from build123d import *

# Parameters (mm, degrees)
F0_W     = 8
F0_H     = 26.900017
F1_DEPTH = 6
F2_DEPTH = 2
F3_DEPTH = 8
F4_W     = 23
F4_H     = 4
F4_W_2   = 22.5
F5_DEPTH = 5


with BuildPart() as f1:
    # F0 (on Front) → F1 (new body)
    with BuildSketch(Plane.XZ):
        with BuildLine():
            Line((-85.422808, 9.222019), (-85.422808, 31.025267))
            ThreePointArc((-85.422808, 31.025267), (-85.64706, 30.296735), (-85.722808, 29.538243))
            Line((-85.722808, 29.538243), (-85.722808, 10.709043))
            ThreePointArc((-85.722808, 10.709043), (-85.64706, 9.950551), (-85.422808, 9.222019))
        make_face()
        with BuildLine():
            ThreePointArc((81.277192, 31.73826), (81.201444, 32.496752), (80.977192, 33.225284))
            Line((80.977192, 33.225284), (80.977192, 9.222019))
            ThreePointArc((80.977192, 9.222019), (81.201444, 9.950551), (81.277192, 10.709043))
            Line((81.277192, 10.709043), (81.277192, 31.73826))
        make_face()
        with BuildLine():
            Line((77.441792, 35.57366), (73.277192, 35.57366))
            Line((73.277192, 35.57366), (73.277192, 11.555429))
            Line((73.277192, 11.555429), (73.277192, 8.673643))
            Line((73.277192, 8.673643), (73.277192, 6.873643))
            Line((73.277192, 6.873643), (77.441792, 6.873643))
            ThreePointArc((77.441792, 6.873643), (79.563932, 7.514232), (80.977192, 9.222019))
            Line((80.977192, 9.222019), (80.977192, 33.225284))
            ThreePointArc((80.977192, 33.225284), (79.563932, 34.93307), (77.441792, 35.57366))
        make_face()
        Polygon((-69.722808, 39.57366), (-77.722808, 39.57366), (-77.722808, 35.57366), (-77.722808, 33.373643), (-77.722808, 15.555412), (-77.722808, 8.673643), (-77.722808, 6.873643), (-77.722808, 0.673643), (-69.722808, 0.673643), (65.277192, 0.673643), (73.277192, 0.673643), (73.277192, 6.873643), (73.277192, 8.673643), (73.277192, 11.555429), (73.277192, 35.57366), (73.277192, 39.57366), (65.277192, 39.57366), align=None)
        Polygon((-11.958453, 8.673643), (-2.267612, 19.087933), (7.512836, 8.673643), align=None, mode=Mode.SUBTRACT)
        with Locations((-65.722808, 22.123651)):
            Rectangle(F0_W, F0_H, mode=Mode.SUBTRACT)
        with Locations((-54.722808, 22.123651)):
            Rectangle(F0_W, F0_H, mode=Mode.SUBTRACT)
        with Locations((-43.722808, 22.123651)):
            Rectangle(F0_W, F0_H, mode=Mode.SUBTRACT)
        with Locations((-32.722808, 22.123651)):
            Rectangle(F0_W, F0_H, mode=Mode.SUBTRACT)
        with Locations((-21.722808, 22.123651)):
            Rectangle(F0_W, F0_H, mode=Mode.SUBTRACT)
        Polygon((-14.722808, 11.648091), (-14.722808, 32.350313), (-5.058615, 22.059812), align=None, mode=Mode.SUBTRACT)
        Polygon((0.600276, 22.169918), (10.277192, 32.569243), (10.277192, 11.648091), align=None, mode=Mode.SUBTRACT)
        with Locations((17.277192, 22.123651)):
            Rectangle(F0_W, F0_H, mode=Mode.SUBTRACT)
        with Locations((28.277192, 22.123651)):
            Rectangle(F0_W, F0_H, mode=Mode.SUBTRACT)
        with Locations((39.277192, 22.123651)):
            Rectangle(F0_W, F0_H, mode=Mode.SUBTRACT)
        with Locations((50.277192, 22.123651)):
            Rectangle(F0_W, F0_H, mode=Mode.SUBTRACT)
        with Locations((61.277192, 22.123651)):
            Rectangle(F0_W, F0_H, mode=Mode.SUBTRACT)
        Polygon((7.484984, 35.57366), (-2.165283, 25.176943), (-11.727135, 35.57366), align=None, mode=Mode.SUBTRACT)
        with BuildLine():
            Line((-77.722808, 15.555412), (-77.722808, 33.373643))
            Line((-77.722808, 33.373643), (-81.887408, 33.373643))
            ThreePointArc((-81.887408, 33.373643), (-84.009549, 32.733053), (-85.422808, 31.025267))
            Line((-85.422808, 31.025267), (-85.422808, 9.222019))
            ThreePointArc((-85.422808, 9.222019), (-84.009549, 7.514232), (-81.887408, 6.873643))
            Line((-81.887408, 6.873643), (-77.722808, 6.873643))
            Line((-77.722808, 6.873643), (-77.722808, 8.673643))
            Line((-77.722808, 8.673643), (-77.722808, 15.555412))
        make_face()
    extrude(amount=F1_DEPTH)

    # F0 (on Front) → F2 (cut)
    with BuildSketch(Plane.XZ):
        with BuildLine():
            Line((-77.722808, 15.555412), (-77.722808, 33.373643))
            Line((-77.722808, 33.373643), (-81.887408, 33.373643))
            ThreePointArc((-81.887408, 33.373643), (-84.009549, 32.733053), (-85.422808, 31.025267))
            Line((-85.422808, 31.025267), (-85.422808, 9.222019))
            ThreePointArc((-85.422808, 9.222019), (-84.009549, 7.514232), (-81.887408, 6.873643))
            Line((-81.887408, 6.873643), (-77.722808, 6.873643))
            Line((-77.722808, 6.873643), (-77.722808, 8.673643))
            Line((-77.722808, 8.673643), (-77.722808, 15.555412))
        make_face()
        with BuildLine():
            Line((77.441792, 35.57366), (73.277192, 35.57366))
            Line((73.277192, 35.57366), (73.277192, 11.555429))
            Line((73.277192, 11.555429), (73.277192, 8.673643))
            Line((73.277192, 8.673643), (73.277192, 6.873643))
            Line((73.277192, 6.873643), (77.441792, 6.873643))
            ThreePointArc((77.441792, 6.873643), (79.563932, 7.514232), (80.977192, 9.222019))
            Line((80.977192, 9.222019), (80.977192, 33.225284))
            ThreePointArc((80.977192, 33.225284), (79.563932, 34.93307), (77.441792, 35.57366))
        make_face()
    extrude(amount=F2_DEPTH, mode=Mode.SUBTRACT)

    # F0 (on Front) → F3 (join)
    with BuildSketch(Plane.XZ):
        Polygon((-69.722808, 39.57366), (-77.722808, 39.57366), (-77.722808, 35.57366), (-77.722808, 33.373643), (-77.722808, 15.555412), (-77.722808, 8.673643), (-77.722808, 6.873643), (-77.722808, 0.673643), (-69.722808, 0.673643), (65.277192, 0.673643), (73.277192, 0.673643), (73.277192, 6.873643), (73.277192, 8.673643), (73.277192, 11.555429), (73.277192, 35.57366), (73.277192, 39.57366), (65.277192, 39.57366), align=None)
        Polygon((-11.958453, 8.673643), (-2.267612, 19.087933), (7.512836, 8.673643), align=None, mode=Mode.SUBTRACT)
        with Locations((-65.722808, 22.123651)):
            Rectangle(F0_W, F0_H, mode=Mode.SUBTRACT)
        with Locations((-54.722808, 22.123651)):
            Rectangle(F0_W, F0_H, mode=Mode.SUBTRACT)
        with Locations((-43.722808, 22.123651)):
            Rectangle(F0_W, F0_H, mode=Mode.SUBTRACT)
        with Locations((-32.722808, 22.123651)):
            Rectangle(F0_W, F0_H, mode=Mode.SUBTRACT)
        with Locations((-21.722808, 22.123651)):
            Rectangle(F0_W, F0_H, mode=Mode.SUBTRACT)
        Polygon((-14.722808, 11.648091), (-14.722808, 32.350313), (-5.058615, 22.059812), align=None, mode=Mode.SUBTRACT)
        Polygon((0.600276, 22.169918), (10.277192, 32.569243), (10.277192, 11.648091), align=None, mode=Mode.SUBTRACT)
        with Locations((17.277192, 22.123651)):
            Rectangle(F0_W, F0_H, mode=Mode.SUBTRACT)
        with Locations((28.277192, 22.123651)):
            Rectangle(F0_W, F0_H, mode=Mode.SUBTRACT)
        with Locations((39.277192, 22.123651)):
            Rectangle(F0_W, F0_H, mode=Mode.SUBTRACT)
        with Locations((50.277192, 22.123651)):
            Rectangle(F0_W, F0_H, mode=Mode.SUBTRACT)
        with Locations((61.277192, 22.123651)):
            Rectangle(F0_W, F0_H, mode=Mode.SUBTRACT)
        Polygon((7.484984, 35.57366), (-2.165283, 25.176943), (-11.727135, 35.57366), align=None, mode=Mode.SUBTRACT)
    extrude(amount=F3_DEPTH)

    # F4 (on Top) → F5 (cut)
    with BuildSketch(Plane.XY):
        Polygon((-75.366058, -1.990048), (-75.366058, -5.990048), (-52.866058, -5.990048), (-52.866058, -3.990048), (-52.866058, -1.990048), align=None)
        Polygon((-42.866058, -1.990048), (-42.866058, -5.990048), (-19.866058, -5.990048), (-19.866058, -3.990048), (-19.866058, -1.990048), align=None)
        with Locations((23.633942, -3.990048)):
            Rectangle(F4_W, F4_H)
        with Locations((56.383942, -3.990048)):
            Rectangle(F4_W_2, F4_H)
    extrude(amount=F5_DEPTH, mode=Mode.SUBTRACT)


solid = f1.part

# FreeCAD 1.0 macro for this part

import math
import FreeCAD as App
import Part
import Sketcher

V = App.Vector
Q = App.Units.Quantity

doc = App.newDocument("Part")
body = doc.addObject("PartDesign::Body", "Body")

# Sketch on XZ plane
sketch1 = body.newObject("Sketcher::SketchObject", "Sketch")
sketch1.AttachmentSupport = (doc.getObject("XZ_Plane"), [""])
sketch1.MapMode = "FlatFace"
sketch1.addGeometry([
    Part.ArcOfCircle(Part.Circle(V(-81.9, 29.5, 0), V(0, 0, 1), 3.8), math.radians(157), math.radians(180)),  # 0
    Part.LineSegment(V(-85.7, 29.5, 0), V(-85.7, 10.7, 0)),  # 1
    Part.ArcOfCircle(Part.Circle(V(-81.9, 10.7, 0), V(0, 0, 1), 3.8), math.radians(180), math.radians(203)),  # 2
    Part.ArcOfCircle(Part.Circle(V(-81.9, 10.7, 0), V(0, 0, 1), 3.8), math.radians(-157), math.radians(-90)),  # 3
    Part.LineSegment(V(-81.9, 6.9, 0), V(-77.7, 6.9, 0)),  # 4
    Part.LineSegment(V(-77.7, 6.9, 0), V(-77.7, 0.7, 0)),  # 5
    Part.LineSegment(V(-77.7, 0.7, 0), V(73.3, 0.7, 0)),  # 6
    Part.LineSegment(V(73.3, 0.7, 0), V(73.3, 6.9, 0)),  # 7
    Part.LineSegment(V(73.3, 6.9, 0), V(77.4, 6.9, 0)),  # 8
    Part.ArcOfCircle(Part.Circle(V(77.4, 10.7, 0), V(0, 0, 1), 3.8), math.radians(-90), math.radians(-23)),  # 9
    Part.ArcOfCircle(Part.Circle(V(77.4, 10.7, 0), V(0, 0, 1), 3.8), math.radians(-23), math.radians(0)),  # 10
    Part.LineSegment(V(81.3, 10.7, 0), V(81.3, 31.7, 0)),  # 11
    Part.ArcOfCircle(Part.Circle(V(77.4, 31.7, 0), V(0, 0, 1), 3.8), math.radians(0), math.radians(23)),  # 12
    Part.ArcOfCircle(Part.Circle(V(77.4, 31.7, 0), V(0, 0, 1), 3.8), math.radians(23), math.radians(90)),  # 13
    Part.LineSegment(V(77.4, 35.6, 0), V(73.3, 35.6, 0)),  # 14
    Part.LineSegment(V(73.3, 35.6, 0), V(73.3, 39.6, 0)),  # 15
    Part.LineSegment(V(73.3, 39.6, 0), V(-77.7, 39.6, 0)),  # 16
    Part.LineSegment(V(-77.7, 39.6, 0), V(-77.7, 33.4, 0)),  # 17
    Part.LineSegment(V(-77.7, 33.4, 0), V(-81.9, 33.4, 0)),  # 18
    Part.ArcOfCircle(Part.Circle(V(-81.9, 29.5, 0), V(0, 0, 1), 3.8), math.radians(90), math.radians(157)),  # 19
    Part.LineSegment(V(7.5, 35.6, 0), V(-2.2, 25.2, 0)),  # 20
    Part.LineSegment(V(-2.2, 25.2, 0), V(-11.7, 35.6, 0)),  # 21
    Part.LineSegment(V(-11.7, 35.6, 0), V(7.5, 35.6, 0)),  # 22
    Part.LineSegment(V(7.5, 8.7, 0), V(-12, 8.7, 0)),  # 23
    Part.LineSegment(V(-12, 8.7, 0), V(-2.3, 19.1, 0)),  # 24
    Part.LineSegment(V(-2.3, 19.1, 0), V(7.5, 8.7, 0)),  # 25
    Part.LineSegment(V(-61.7, 8.7, 0), V(-69.7, 8.7, 0)),  # 26
    Part.LineSegment(V(-69.7, 8.7, 0), V(-69.7, 35.6, 0)),  # 27
    Part.LineSegment(V(-69.7, 35.6, 0), V(-61.7, 35.6, 0)),  # 28
    Part.LineSegment(V(-61.7, 35.6, 0), V(-61.7, 8.7, 0)),  # 29
    Part.LineSegment(V(-50.7, 8.7, 0), V(-58.7, 8.7, 0)),  # 30
    Part.LineSegment(V(-58.7, 8.7, 0), V(-58.7, 35.6, 0)),  # 31
    Part.LineSegment(V(-58.7, 35.6, 0), V(-50.7, 35.6, 0)),  # 32
    Part.LineSegment(V(-50.7, 35.6, 0), V(-50.7, 8.7, 0)),  # 33
    Part.LineSegment(V(-39.7, 8.7, 0), V(-47.7, 8.7, 0)),  # 34
    Part.LineSegment(V(-47.7, 8.7, 0), V(-47.7, 35.6, 0)),  # 35
    Part.LineSegment(V(-47.7, 35.6, 0), V(-39.7, 35.6, 0)),  # 36
    Part.LineSegment(V(-39.7, 35.6, 0), V(-39.7, 8.7, 0)),  # 37
    Part.LineSegment(V(-28.7, 8.7, 0), V(-36.7, 8.7, 0)),  # 38
    Part.LineSegment(V(-36.7, 8.7, 0), V(-36.7, 35.6, 0)),  # 39
    Part.LineSegment(V(-36.7, 35.6, 0), V(-28.7, 35.6, 0)),  # 40
    Part.LineSegment(V(-28.7, 35.6, 0), V(-28.7, 8.7, 0)),  # 41
    Part.LineSegment(V(-17.7, 8.7, 0), V(-25.7, 8.7, 0)),  # 42
    Part.LineSegment(V(-25.7, 8.7, 0), V(-25.7, 35.6, 0)),  # 43
    Part.LineSegment(V(-25.7, 35.6, 0), V(-17.7, 35.6, 0)),  # 44
    Part.LineSegment(V(-17.7, 35.6, 0), V(-17.7, 8.7, 0)),  # 45
    Part.LineSegment(V(-5.1, 22.1, 0), V(-14.7, 11.6, 0)),  # 46
    Part.LineSegment(V(-14.7, 11.6, 0), V(-14.7, 32.4, 0)),  # 47
    Part.LineSegment(V(-14.7, 32.4, 0), V(-5.1, 22.1, 0)),  # 48
    Part.LineSegment(V(10.3, 11.6, 0), V(0.6, 22.2, 0)),  # 49
    Part.LineSegment(V(0.6, 22.2, 0), V(10.3, 32.6, 0)),  # 50
    Part.LineSegment(V(10.3, 32.6, 0), V(10.3, 11.6, 0)),  # 51
    Part.LineSegment(V(21.3, 8.7, 0), V(13.3, 8.7, 0)),  # 52
    Part.LineSegment(V(13.3, 8.7, 0), V(13.3, 35.6, 0)),  # 53
    Part.LineSegment(V(13.3, 35.6, 0), V(21.3, 35.6, 0)),  # 54
    Part.LineSegment(V(21.3, 35.6, 0), V(21.3, 8.7, 0)),  # 55
    Part.LineSegment(V(32.3, 8.7, 0), V(24.3, 8.7, 0)),  # 56
    Part.LineSegment(V(24.3, 8.7, 0), V(24.3, 35.6, 0)),  # 57
    Part.LineSegment(V(24.3, 35.6, 0), V(32.3, 35.6, 0)),  # 58
    Part.LineSegment(V(32.3, 35.6, 0), V(32.3, 8.7, 0)),  # 59
    Part.LineSegment(V(43.3, 8.7, 0), V(35.3, 8.7, 0)),  # 60
    Part.LineSegment(V(35.3, 8.7, 0), V(35.3, 35.6, 0)),  # 61
    Part.LineSegment(V(35.3, 35.6, 0), V(43.3, 35.6, 0)),  # 62
    Part.LineSegment(V(43.3, 35.6, 0), V(43.3, 8.7, 0)),  # 63
    Part.LineSegment(V(54.3, 8.7, 0), V(46.3, 8.7, 0)),  # 64
    Part.LineSegment(V(46.3, 8.7, 0), V(46.3, 35.6, 0)),  # 65
    Part.LineSegment(V(46.3, 35.6, 0), V(54.3, 35.6, 0)),  # 66
    Part.LineSegment(V(54.3, 35.6, 0), V(54.3, 8.7, 0)),  # 67
    Part.LineSegment(V(65.3, 8.7, 0), V(57.3, 8.7, 0)),  # 68
    Part.LineSegment(V(57.3, 8.7, 0), V(57.3, 35.6, 0)),  # 69
    Part.LineSegment(V(57.3, 35.6, 0), V(65.3, 35.6, 0)),  # 70
    Part.LineSegment(V(65.3, 35.6, 0), V(65.3, 8.7, 0)),  # 71
], False)
sketch1.addConstraint([
    Sketcher.Constraint("Tangent", 0, 2, 1, 1),
    Sketcher.Constraint("Tangent", 1, 2, 2, 1),
    Sketcher.Constraint("Tangent", 2, 2, 3, 1),
    Sketcher.Constraint("Tangent", 3, 2, 4, 1),
    Sketcher.Constraint("Coincident", 4, 2, 5, 1),
    Sketcher.Constraint("Coincident", 5, 2, 6, 1),
    Sketcher.Constraint("Coincident", 6, 2, 7, 1),
    Sketcher.Constraint("Coincident", 7, 2, 8, 1),
    Sketcher.Constraint("Tangent", 8, 2, 9, 1),
    Sketcher.Constraint("Tangent", 9, 2, 10, 1),
    Sketcher.Constraint("Tangent", 10, 2, 11, 1),
    Sketcher.Constraint("Tangent", 11, 2, 12, 1),
    Sketcher.Constraint("Tangent", 12, 2, 13, 1),
    Sketcher.Constraint("Tangent", 13, 2, 14, 1),
    Sketcher.Constraint("Coincident", 14, 2, 15, 1),
    Sketcher.Constraint("Coincident", 15, 2, 16, 1),
    Sketcher.Constraint("Coincident", 16, 2, 17, 1),
    Sketcher.Constraint("Coincident", 17, 2, 18, 1),
    Sketcher.Constraint("Tangent", 18, 2, 19, 1),
    Sketcher.Constraint("Tangent", 19, 2, 0, 1),
    Sketcher.Constraint("Coincident", 20, 2, 21, 1),
    Sketcher.Constraint("Coincident", 21, 2, 22, 1),
    Sketcher.Constraint("Coincident", 22, 2, 20, 1),
    Sketcher.Constraint("Coincident", 23, 2, 24, 1),
    Sketcher.Constraint("Coincident", 24, 2, 25, 1),
    Sketcher.Constraint("Coincident", 25, 2, 23, 1),
    Sketcher.Constraint("Coincident", 26, 2, 27, 1),
    Sketcher.Constraint("Coincident", 27, 2, 28, 1),
    Sketcher.Constraint("Coincident", 28, 2, 29, 1),
    Sketcher.Constraint("Coincident", 29, 2, 26, 1),
    Sketcher.Constraint("Coincident", 30, 2, 31, 1),
    Sketcher.Constraint("Coincident", 31, 2, 32, 1),
    Sketcher.Constraint("Coincident", 32, 2, 33, 1),
    Sketcher.Constraint("Coincident", 33, 2, 30, 1),
    Sketcher.Constraint("Coincident", 34, 2, 35, 1),
    Sketcher.Constraint("Coincident", 35, 2, 36, 1),
    Sketcher.Constraint("Coincident", 36, 2, 37, 1),
    Sketcher.Constraint("Coincident", 37, 2, 34, 1),
    Sketcher.Constraint("Coincident", 38, 2, 39, 1),
    Sketcher.Constraint("Coincident", 39, 2, 40, 1),
    Sketcher.Constraint("Coincident", 40, 2, 41, 1),
    Sketcher.Constraint("Coincident", 41, 2, 38, 1),
    Sketcher.Constraint("Coincident", 42, 2, 43, 1),
    Sketcher.Constraint("Coincident", 43, 2, 44, 1),
    Sketcher.Constraint("Coincident", 44, 2, 45, 1),
    Sketcher.Constraint("Coincident", 45, 2, 42, 1),
    Sketcher.Constraint("Coincident", 46, 2, 47, 1),
    Sketcher.Constraint("Coincident", 47, 2, 48, 1),
    Sketcher.Constraint("Coincident", 48, 2, 46, 1),
    Sketcher.Constraint("Coincident", 49, 2, 50, 1),
    Sketcher.Constraint("Coincident", 50, 2, 51, 1),
    Sketcher.Constraint("Coincident", 51, 2, 49, 1),
    Sketcher.Constraint("Coincident", 52, 2, 53, 1),
    Sketcher.Constraint("Coincident", 53, 2, 54, 1),
    Sketcher.Constraint("Coincident", 54, 2, 55, 1),
    Sketcher.Constraint("Coincident", 55, 2, 52, 1),
    Sketcher.Constraint("Coincident", 56, 2, 57, 1),
    Sketcher.Constraint("Coincident", 57, 2, 58, 1),
    Sketcher.Constraint("Coincident", 58, 2, 59, 1),
    Sketcher.Constraint("Coincident", 59, 2, 56, 1),
    Sketcher.Constraint("Coincident", 60, 2, 61, 1),
    Sketcher.Constraint("Coincident", 61, 2, 62, 1),
    Sketcher.Constraint("Coincident", 62, 2, 63, 1),
    Sketcher.Constraint("Coincident", 63, 2, 60, 1),
    Sketcher.Constraint("Coincident", 64, 2, 65, 1),
    Sketcher.Constraint("Coincident", 65, 2, 66, 1),
    Sketcher.Constraint("Coincident", 66, 2, 67, 1),
    Sketcher.Constraint("Coincident", 67, 2, 64, 1),
    Sketcher.Constraint("Coincident", 68, 2, 69, 1),
    Sketcher.Constraint("Coincident", 69, 2, 70, 1),
    Sketcher.Constraint("Coincident", 70, 2, 71, 1),
    Sketcher.Constraint("Coincident", 71, 2, 68, 1),
    Sketcher.Constraint("Vertical", 1),
    Sketcher.Constraint("Horizontal", 4),
    Sketcher.Constraint("Vertical", 5),
    Sketcher.Constraint("Horizontal", 6),
    Sketcher.Constraint("Vertical", 7),
    Sketcher.Constraint("Horizontal", 8),
    Sketcher.Constraint("Vertical", 11),
    Sketcher.Constraint("Horizontal", 14),
    Sketcher.Constraint("Vertical", 15),
    Sketcher.Constraint("Horizontal", 16),
    Sketcher.Constraint("Vertical", 17),
    Sketcher.Constraint("Horizontal", 18),
    Sketcher.Constraint("Horizontal", 22),
    Sketcher.Constraint("Horizontal", 23),
    Sketcher.Constraint("Horizontal", 26),
    Sketcher.Constraint("Vertical", 27),
    Sketcher.Constraint("Horizontal", 28),
    Sketcher.Constraint("Vertical", 29),
    Sketcher.Constraint("Horizontal", 30),
    Sketcher.Constraint("Vertical", 31),
    Sketcher.Constraint("Horizontal", 32),
    Sketcher.Constraint("Vertical", 33),
    Sketcher.Constraint("Horizontal", 34),
    Sketcher.Constraint("Vertical", 35),
    Sketcher.Constraint("Horizontal", 36),
    Sketcher.Constraint("Vertical", 37),
    Sketcher.Constraint("Horizontal", 38),
    Sketcher.Constraint("Vertical", 39),
    Sketcher.Constraint("Horizontal", 40),
    Sketcher.Constraint("Vertical", 41),
    Sketcher.Constraint("Horizontal", 42),
    Sketcher.Constraint("Vertical", 43),
    Sketcher.Constraint("Horizontal", 44),
    Sketcher.Constraint("Vertical", 45),
    Sketcher.Constraint("Vertical", 47),
    Sketcher.Constraint("Vertical", 51),
    Sketcher.Constraint("Horizontal", 52),
    Sketcher.Constraint("Vertical", 53),
    Sketcher.Constraint("Horizontal", 54),
    Sketcher.Constraint("Vertical", 55),
    Sketcher.Constraint("Horizontal", 56),
    Sketcher.Constraint("Vertical", 57),
    Sketcher.Constraint("Horizontal", 58),
    Sketcher.Constraint("Vertical", 59),
    Sketcher.Constraint("Horizontal", 60),
    Sketcher.Constraint("Vertical", 61),
    Sketcher.Constraint("Horizontal", 62),
    Sketcher.Constraint("Vertical", 63),
    Sketcher.Constraint("Horizontal", 64),
    Sketcher.Constraint("Vertical", 65),
    Sketcher.Constraint("Horizontal", 66),
    Sketcher.Constraint("Vertical", 67),
    Sketcher.Constraint("Horizontal", 68),
    Sketcher.Constraint("Vertical", 69),
    Sketcher.Constraint("Horizontal", 70),
    Sketcher.Constraint("Vertical", 71),
    Sketcher.Constraint("Equal", 0, 2),
    Sketcher.Constraint("Equal", 2, 9),
    Sketcher.Constraint("Equal", 9, 10),
    Sketcher.Constraint("Equal", 10, 12),
    Sketcher.Constraint("Equal", 12, 19),
    Sketcher.Constraint("Parallel", 20, 46),
    Sketcher.Constraint("Parallel", 25, 48),
    Sketcher.Constraint("Parallel", 21, 49),
    Sketcher.Constraint("Parallel", 24, 50),
    Sketcher.Constraint("Horizontal", 2, 3, 9, 3),
    Sketcher.Constraint("Horizontal", 4, 2, 7, 2),
    Sketcher.Constraint("Horizontal", 2, 2, 9, 2),
    Sketcher.Constraint("Horizontal", 14, 2, 21, 2),
    Sketcher.Constraint("Horizontal", 25, 2, 26, 2),
    Sketcher.Constraint("Horizontal", 22, 2, 27, 2),
    Sketcher.Constraint("Horizontal", 29, 2, 30, 2),
    Sketcher.Constraint("Horizontal", 28, 2, 31, 2),
    Sketcher.Constraint("Horizontal", 33, 2, 34, 2),
    Sketcher.Constraint("Horizontal", 32, 2, 35, 2),
    Sketcher.Constraint("Horizontal", 37, 2, 38, 2),
    Sketcher.Constraint("Horizontal", 36, 2, 39, 2),
    Sketcher.Constraint("Horizontal", 41, 2, 42, 2),
    Sketcher.Constraint("Horizontal", 40, 2, 43, 2),
    Sketcher.Constraint("Horizontal", 46, 2, 51, 2),
    Sketcher.Constraint("Horizontal", 45, 2, 52, 2),
    Sketcher.Constraint("Horizontal", 44, 2, 53, 2),
    Sketcher.Constraint("Horizontal", 55, 2, 56, 2),
    Sketcher.Constraint("Horizontal", 54, 2, 57, 2),
    Sketcher.Constraint("Horizontal", 59, 2, 60, 2),
    Sketcher.Constraint("Horizontal", 58, 2, 61, 2),
    Sketcher.Constraint("Horizontal", 63, 2, 64, 2),
    Sketcher.Constraint("Horizontal", 62, 2, 65, 2),
    Sketcher.Constraint("Horizontal", 67, 2, 68, 2),
    Sketcher.Constraint("Horizontal", 66, 2, 69, 2),
    Sketcher.Constraint("Vertical", 10, 3, 13, 3),
    Sketcher.Constraint("Vertical", 9, 2, 12, 2),
    Sketcher.Constraint("Vertical", 7, 2, 14, 2),
    Sketcher.Constraint("Vertical", 5, 2, 16, 2),
    Sketcher.Constraint("Vertical", 2, 2, 19, 2),
    Sketcher.Constraint("Equal", 4, 8),
    Sketcher.Constraint("Equal", 28, 30),
    Sketcher.Constraint("Equal", 32, 34),
    Sketcher.Constraint("Equal", 36, 38),
    Sketcher.Constraint("Equal", 40, 42),
    Sketcher.Constraint("Equal", 44, 52),
    Sketcher.Constraint("Equal", 54, 56),
    Sketcher.Constraint("Equal", 58, 60),
    Sketcher.Constraint("Equal", 62, 64),
    Sketcher.Constraint("Equal", 66, 68),
    Sketcher.Constraint("DistanceX", 6, 1, 6, 2, Q("151 mm")),
    Sketcher.Constraint("DistanceX", 26, 2, 26, 1, Q("8 mm")),
    Sketcher.Constraint("DistanceY", 15, 1, 15, 2, Q("4 mm")),
    Sketcher.Constraint("DistanceY", 5, 2, 5, 1, Q("6.2 mm")),
    Sketcher.Constraint("Radius", 0, Q("3.8354 mm")),
    Sketcher.Constraint("DistanceX", 4, 1, 4, 2, Q("4.1646 mm")),
    Sketcher.Constraint("DistanceY", 1, 2, 1, 1, Q("18.8292 mm")),
    Sketcher.Constraint("DistanceX", 22, 1, 22, 2, Q("19.212119 mm")),
    Sketcher.Constraint("DistanceX", 23, 2, 23, 1, Q("19.471289 mm")),
    Sketcher.Constraint("DistanceY", 47, 1, 47, 2, Q("20.702222 mm")),
    Sketcher.Constraint("DistanceY", 51, 2, 51, 1, Q("20.921152 mm")),
    Sketcher.Constraint("Distance", 20, Q("14.185182 mm")),
    Sketcher.Constraint("Distance", 21, Q("14.125181 mm")),
    Sketcher.Constraint("Distance", 25, Q("14.286868 mm")),
    Sketcher.Constraint("Distance", 49, Q("14.295158 mm")),
    Sketcher.Constraint("DistanceY", 11, 1, 11, 2, Q("21.029217 mm")),
    Sketcher.Constraint("DistanceY", 27, 1, 27, 2, Q("26.900017 mm")),
    Sketcher.Constraint("DistanceX", 3, 3, -1, 1, Q("81.887411 mm")),
    Sketcher.Constraint("DistanceY", -1, 1, 3, 3, Q("10.709039 mm")),
    Sketcher.Constraint("DistanceY", -1, 1, 2, 2, Q("9.222019 mm")),
    Sketcher.Constraint("DistanceX", 26, 2, -1, 1, Q("69.722808 mm")),
    Sketcher.Constraint("DistanceX", 40, 2, -1, 1, Q("28.722808 mm")),
    Sketcher.Constraint("DistanceX", 42, 2, -1, 1, Q("25.722808 mm")),
    Sketcher.Constraint("DistanceY", -1, 1, 46, 2, Q("11.648091 mm")),
    Sketcher.Constraint("DistanceX", -1, 1, 54, 2, Q("21.277192 mm")),
    Sketcher.Constraint("DistanceX", -1, 1, 56, 2, Q("24.277192 mm")),
    Sketcher.Constraint("DistanceX", -1, 1, 70, 2, Q("65.277192 mm")),
    Sketcher.Constraint("DistanceX", 20, 2, -1, 1, Q("2.165283 mm")),
    Sketcher.Constraint("DistanceX", 23, 2, -1, 1, Q("11.958453 mm")),
    Sketcher.Constraint("DistanceX", 30, 2, -1, 1, Q("58.722808 mm")),
    Sketcher.Constraint("DistanceX", 34, 2, -1, 1, Q("47.722808 mm")),
    Sketcher.Constraint("DistanceX", 46, 2, -1, 1, Q("14.722808 mm")),
    Sketcher.Constraint("DistanceX", -1, 1, 49, 2, Q("0.600276 mm")),
    Sketcher.Constraint("DistanceX", -1, 1, 60, 2, Q("35.277192 mm")),
    Sketcher.Constraint("DistanceX", -1, 1, 64, 2, Q("46.277192 mm")),
])
pad1 = body.newObject("PartDesign::Pad", "Pad")
pad1.Profile = sketch1
pad1.Length = 6

# Sketch on XZ plane
sketch2 = body.newObject("Sketcher::SketchObject", "Sketch001")
sketch2.AttachmentSupport = (doc.getObject("XZ_Plane"), [""])
sketch2.MapMode = "FlatFace"
sketch2.addGeometry([
    Part.LineSegment(V(-77.7, 33.4, 0), V(-81.9, 33.4, 0)),  # 0
    Part.ArcOfCircle(Part.Circle(V(-81.9, 29.5, 0), V(0, 0, 1), 3.8), math.radians(90), math.radians(157)),  # 1
    Part.LineSegment(V(-85.4, 31, 0), V(-85.4, 9.2, 0)),  # 2
    Part.ArcOfCircle(Part.Circle(V(-81.9, 10.7, 0), V(0, 0, 1), 3.8), math.radians(-157), math.radians(-90)),  # 3
    Part.LineSegment(V(-81.9, 6.9, 0), V(-77.7, 6.9, 0)),  # 4
    Part.LineSegment(V(-77.7, 6.9, 0), V(-77.7, 33.4, 0)),  # 5
    Part.LineSegment(V(77.4, 35.6, 0), V(73.3, 35.6, 0)),  # 6
    Part.LineSegment(V(73.3, 35.6, 0), V(73.3, 6.9, 0)),  # 7
    Part.LineSegment(V(73.3, 6.9, 0), V(77.4, 6.9, 0)),  # 8
    Part.ArcOfCircle(Part.Circle(V(77.4, 10.7, 0), V(0, 0, 1), 3.8), math.radians(-90), math.radians(-23)),  # 9
    Part.LineSegment(V(81, 9.2, 0), V(81, 33.2, 0)),  # 10
    Part.ArcOfCircle(Part.Circle(V(77.4, 31.7, 0), V(0, 0, 1), 3.8), math.radians(23), math.radians(90)),  # 11
], False)
sketch2.addConstraint([
    Sketcher.Constraint("Tangent", 0, 2, 1, 1),
    Sketcher.Constraint("Coincident", 1, 2, 2, 1),
    Sketcher.Constraint("Coincident", 2, 2, 3, 1),
    Sketcher.Constraint("Tangent", 3, 2, 4, 1),
    Sketcher.Constraint("Coincident", 4, 2, 5, 1),
    Sketcher.Constraint("Coincident", 5, 2, 0, 1),
    Sketcher.Constraint("Coincident", 6, 2, 7, 1),
    Sketcher.Constraint("Coincident", 7, 2, 8, 1),
    Sketcher.Constraint("Tangent", 8, 2, 9, 1),
    Sketcher.Constraint("Coincident", 9, 2, 10, 1),
    Sketcher.Constraint("Coincident", 10, 2, 11, 1),
    Sketcher.Constraint("Tangent", 11, 2, 6, 1),
    Sketcher.Constraint("Horizontal", 0),
    Sketcher.Constraint("Vertical", 2),
    Sketcher.Constraint("Horizontal", 4),
    Sketcher.Constraint("Vertical", 5),
    Sketcher.Constraint("Horizontal", 6),
    Sketcher.Constraint("Vertical", 7),
    Sketcher.Constraint("Horizontal", 8),
    Sketcher.Constraint("Vertical", 10),
    Sketcher.Constraint("Equal", 1, 9),
    Sketcher.Constraint("Horizontal", 4, 2, 7, 2),
    Sketcher.Constraint("Horizontal", 2, 2, 9, 2),
    Sketcher.Constraint("Vertical", 0, 2, 3, 2),
    Sketcher.Constraint("Vertical", 11, 3, 8, 2),
    Sketcher.Constraint("Equal", 4, 6),
    Sketcher.Constraint("DistanceY", 5, 1, 5, 2, Q("26.5 mm")),
    Sketcher.Constraint("DistanceX", 5, 2, 6, 2, Q("151 mm")),
    Sketcher.Constraint("Radius", 1, Q("3.8354 mm")),
    Sketcher.Constraint("DistanceX", 2, 2, 4, 2, Q("7.7 mm")),
    Sketcher.Constraint("DistanceX", 7, 2, 9, 2, Q("7.7 mm")),
    Sketcher.Constraint("DistanceX", 0, 2, 0, 1, Q("4.1646 mm")),
    Sketcher.Constraint("Radius", 11, Q("3.835403 mm")),
    Sketcher.Constraint("DistanceY", 7, 2, 7, 1, Q("28.700017 mm")),
    Sketcher.Constraint("DistanceX", 1, 3, -1, 1, Q("81.887408 mm")),
    Sketcher.Constraint("DistanceY", -1, 1, 3, 3, Q("10.709039 mm")),
])
pocket1 = body.newObject("PartDesign::Pocket", "Pocket")
pocket1.Profile = sketch2
pocket1.Length = 2
pocket1.Reversed = True

# Sketch on XZ plane
sketch3 = body.newObject("Sketcher::SketchObject", "Sketch002")
sketch3.AttachmentSupport = (doc.getObject("XZ_Plane"), [""])
sketch3.MapMode = "FlatFace"
sketch3.addGeometry([
    Part.LineSegment(V(-78, 40, 0), V(-78, 1, 0)),  # 0
    Part.LineSegment(V(-78, 1, 0), V(73, 1, 0)),  # 1
    Part.LineSegment(V(73, 1, 0), V(73, 40, 0)),  # 2
    Part.LineSegment(V(73, 40, 0), V(-78, 40, 0)),  # 3
    Part.LineSegment(V(8, 9, 0), V(-12, 9, 0)),  # 4
    Part.LineSegment(V(-12, 9, 0), V(-2, 19, 0)),  # 5
    Part.LineSegment(V(-2, 19, 0), V(8, 9, 0)),  # 6
    Part.LineSegment(V(-62, 9, 0), V(-70, 9, 0)),  # 7
    Part.LineSegment(V(-70, 9, 0), V(-70, 36, 0)),  # 8
    Part.LineSegment(V(-70, 36, 0), V(-62, 36, 0)),  # 9
    Part.LineSegment(V(-62, 36, 0), V(-62, 9, 0)),  # 10
    Part.LineSegment(V(-51, 9, 0), V(-59, 9, 0)),  # 11
    Part.LineSegment(V(-59, 9, 0), V(-59, 36, 0)),  # 12
    Part.LineSegment(V(-59, 36, 0), V(-51, 36, 0)),  # 13
    Part.LineSegment(V(-51, 36, 0), V(-51, 9, 0)),  # 14
    Part.LineSegment(V(-40, 9, 0), V(-48, 9, 0)),  # 15
    Part.LineSegment(V(-48, 9, 0), V(-48, 36, 0)),  # 16
    Part.LineSegment(V(-48, 36, 0), V(-40, 36, 0)),  # 17
    Part.LineSegment(V(-40, 36, 0), V(-40, 9, 0)),  # 18
    Part.LineSegment(V(-29, 9, 0), V(-37, 9, 0)),  # 19
    Part.LineSegment(V(-37, 9, 0), V(-37, 36, 0)),  # 20
    Part.LineSegment(V(-37, 36, 0), V(-29, 36, 0)),  # 21
    Part.LineSegment(V(-29, 36, 0), V(-29, 9, 0)),  # 22
    Part.LineSegment(V(-18, 9, 0), V(-26, 9, 0)),  # 23
    Part.LineSegment(V(-26, 9, 0), V(-26, 36, 0)),  # 24
    Part.LineSegment(V(-26, 36, 0), V(-18, 36, 0)),  # 25
    Part.LineSegment(V(-18, 36, 0), V(-18, 9, 0)),  # 26
    Part.LineSegment(V(-5, 22, 0), V(-15, 12, 0)),  # 27
    Part.LineSegment(V(-15, 12, 0), V(-15, 32, 0)),  # 28
    Part.LineSegment(V(-15, 32, 0), V(-5, 22, 0)),  # 29
    Part.LineSegment(V(10, 12, 0), V(1, 22, 0)),  # 30
    Part.LineSegment(V(1, 22, 0), V(10, 33, 0)),  # 31
    Part.LineSegment(V(10, 33, 0), V(10, 12, 0)),  # 32
    Part.LineSegment(V(21, 9, 0), V(13, 9, 0)),  # 33
    Part.LineSegment(V(13, 9, 0), V(13, 36, 0)),  # 34
    Part.LineSegment(V(13, 36, 0), V(21, 36, 0)),  # 35
    Part.LineSegment(V(21, 36, 0), V(21, 9, 0)),  # 36
    Part.LineSegment(V(32, 9, 0), V(24, 9, 0)),  # 37
    Part.LineSegment(V(24, 9, 0), V(24, 36, 0)),  # 38
    Part.LineSegment(V(24, 36, 0), V(32, 36, 0)),  # 39
    Part.LineSegment(V(32, 36, 0), V(32, 9, 0)),  # 40
    Part.LineSegment(V(43, 9, 0), V(35, 9, 0)),  # 41
    Part.LineSegment(V(35, 9, 0), V(35, 36, 0)),  # 42
    Part.LineSegment(V(35, 36, 0), V(43, 36, 0)),  # 43
    Part.LineSegment(V(43, 36, 0), V(43, 9, 0)),  # 44
    Part.LineSegment(V(54, 9, 0), V(46, 9, 0)),  # 45
    Part.LineSegment(V(46, 9, 0), V(46, 36, 0)),  # 46
    Part.LineSegment(V(46, 36, 0), V(54, 36, 0)),  # 47
    Part.LineSegment(V(54, 36, 0), V(54, 9, 0)),  # 48
    Part.LineSegment(V(65, 9, 0), V(57, 9, 0)),  # 49
    Part.LineSegment(V(57, 9, 0), V(57, 36, 0)),  # 50
    Part.LineSegment(V(57, 36, 0), V(65, 36, 0)),  # 51
    Part.LineSegment(V(65, 36, 0), V(65, 9, 0)),  # 52
    Part.LineSegment(V(-12, 36, 0), V(7, 36, 0)),  # 53
    Part.LineSegment(V(7, 36, 0), V(-2, 25, 0)),  # 54
    Part.LineSegment(V(-2, 25, 0), V(-12, 36, 0)),  # 55
], False)
sketch3.addConstraint([
    Sketcher.Constraint("Coincident", 0, 2, 1, 1),
    Sketcher.Constraint("Coincident", 1, 2, 2, 1),
    Sketcher.Constraint("Coincident", 2, 2, 3, 1),
    Sketcher.Constraint("Coincident", 3, 2, 0, 1),
    Sketcher.Constraint("Coincident", 4, 2, 5, 1),
    Sketcher.Constraint("Coincident", 5, 2, 6, 1),
    Sketcher.Constraint("Coincident", 6, 2, 4, 1),
    Sketcher.Constraint("Coincident", 7, 2, 8, 1),
    Sketcher.Constraint("Coincident", 8, 2, 9, 1),
    Sketcher.Constraint("Coincident", 9, 2, 10, 1),
    Sketcher.Constraint("Coincident", 10, 2, 7, 1),
    Sketcher.Constraint("Coincident", 11, 2, 12, 1),
    Sketcher.Constraint("Coincident", 12, 2, 13, 1),
    Sketcher.Constraint("Coincident", 13, 2, 14, 1),
    Sketcher.Constraint("Coincident", 14, 2, 11, 1),
    Sketcher.Constraint("Coincident", 15, 2, 16, 1),
    Sketcher.Constraint("Coincident", 16, 2, 17, 1),
    Sketcher.Constraint("Coincident", 17, 2, 18, 1),
    Sketcher.Constraint("Coincident", 18, 2, 15, 1),
    Sketcher.Constraint("Coincident", 19, 2, 20, 1),
    Sketcher.Constraint("Coincident", 20, 2, 21, 1),
    Sketcher.Constraint("Coincident", 21, 2, 22, 1),
    Sketcher.Constraint("Coincident", 22, 2, 19, 1),
    Sketcher.Constraint("Coincident", 23, 2, 24, 1),
    Sketcher.Constraint("Coincident", 24, 2, 25, 1),
    Sketcher.Constraint("Coincident", 25, 2, 26, 1),
    Sketcher.Constraint("Coincident", 26, 2, 23, 1),
    Sketcher.Constraint("Coincident", 27, 2, 28, 1),
    Sketcher.Constraint("Coincident", 28, 2, 29, 1),
    Sketcher.Constraint("Coincident", 29, 2, 27, 1),
    Sketcher.Constraint("Coincident", 30, 2, 31, 1),
    Sketcher.Constraint("Coincident", 31, 2, 32, 1),
    Sketcher.Constraint("Coincident", 32, 2, 30, 1),
    Sketcher.Constraint("Coincident", 33, 2, 34, 1),
    Sketcher.Constraint("Coincident", 34, 2, 35, 1),
    Sketcher.Constraint("Coincident", 35, 2, 36, 1),
    Sketcher.Constraint("Coincident", 36, 2, 33, 1),
    Sketcher.Constraint("Coincident", 37, 2, 38, 1),
    Sketcher.Constraint("Coincident", 38, 2, 39, 1),
    Sketcher.Constraint("Coincident", 39, 2, 40, 1),
    Sketcher.Constraint("Coincident", 40, 2, 37, 1),
    Sketcher.Constraint("Coincident", 41, 2, 42, 1),
    Sketcher.Constraint("Coincident", 42, 2, 43, 1),
    Sketcher.Constraint("Coincident", 43, 2, 44, 1),
    Sketcher.Constraint("Coincident", 44, 2, 41, 1),
    Sketcher.Constraint("Coincident", 45, 2, 46, 1),
    Sketcher.Constraint("Coincident", 46, 2, 47, 1),
    Sketcher.Constraint("Coincident", 47, 2, 48, 1),
    Sketcher.Constraint("Coincident", 48, 2, 45, 1),
    Sketcher.Constraint("Coincident", 49, 2, 50, 1),
    Sketcher.Constraint("Coincident", 50, 2, 51, 1),
    Sketcher.Constraint("Coincident", 51, 2, 52, 1),
    Sketcher.Constraint("Coincident", 52, 2, 49, 1),
    Sketcher.Constraint("Coincident", 53, 2, 54, 1),
    Sketcher.Constraint("Coincident", 54, 2, 55, 1),
    Sketcher.Constraint("Coincident", 55, 2, 53, 1),
    Sketcher.Constraint("Vertical", 0),
    Sketcher.Constraint("Horizontal", 1),
    Sketcher.Constraint("Vertical", 2),
    Sketcher.Constraint("Horizontal", 3),
    Sketcher.Constraint("Horizontal", 4),
    Sketcher.Constraint("Horizontal", 7),
    Sketcher.Constraint("Vertical", 8),
    Sketcher.Constraint("Horizontal", 9),
    Sketcher.Constraint("Vertical", 10),
    Sketcher.Constraint("Horizontal", 11),
    Sketcher.Constraint("Vertical", 12),
    Sketcher.Constraint("Horizontal", 13),
    Sketcher.Constraint("Vertical", 14),
    Sketcher.Constraint("Horizontal", 15),
    Sketcher.Constraint("Vertical", 16),
    Sketcher.Constraint("Horizontal", 17),
    Sketcher.Constraint("Vertical", 18),
    Sketcher.Constraint("Horizontal", 19),
    Sketcher.Constraint("Vertical", 20),
    Sketcher.Constraint("Horizontal", 21),
    Sketcher.Constraint("Vertical", 22),
    Sketcher.Constraint("Horizontal", 23),
    Sketcher.Constraint("Vertical", 24),
    Sketcher.Constraint("Horizontal", 25),
    Sketcher.Constraint("Vertical", 26),
    Sketcher.Constraint("Vertical", 28),
    Sketcher.Constraint("Vertical", 32),
    Sketcher.Constraint("Horizontal", 33),
    Sketcher.Constraint("Vertical", 34),
    Sketcher.Constraint("Horizontal", 35),
    Sketcher.Constraint("Vertical", 36),
    Sketcher.Constraint("Horizontal", 37),
    Sketcher.Constraint("Vertical", 38),
    Sketcher.Constraint("Horizontal", 39),
    Sketcher.Constraint("Vertical", 40),
    Sketcher.Constraint("Horizontal", 41),
    Sketcher.Constraint("Vertical", 42),
    Sketcher.Constraint("Horizontal", 43),
    Sketcher.Constraint("Vertical", 44),
    Sketcher.Constraint("Horizontal", 45),
    Sketcher.Constraint("Vertical", 46),
    Sketcher.Constraint("Horizontal", 47),
    Sketcher.Constraint("Vertical", 48),
    Sketcher.Constraint("Horizontal", 49),
    Sketcher.Constraint("Vertical", 50),
    Sketcher.Constraint("Horizontal", 51),
    Sketcher.Constraint("Vertical", 52),
    Sketcher.Constraint("Horizontal", 53),
    Sketcher.Constraint("Parallel", 6, 29),
    Sketcher.Constraint("Parallel", 5, 31),
    Sketcher.Constraint("Parallel", 27, 54),
    Sketcher.Constraint("Parallel", 30, 55),
    Sketcher.Constraint("Horizontal", 6, 2, 7, 2),
    Sketcher.Constraint("Horizontal", 10, 2, 11, 2),
    Sketcher.Constraint("Horizontal", 9, 2, 12, 2),
    Sketcher.Constraint("Horizontal", 14, 2, 15, 2),
    Sketcher.Constraint("Horizontal", 13, 2, 16, 2),
    Sketcher.Constraint("Horizontal", 18, 2, 19, 2),
    Sketcher.Constraint("Horizontal", 17, 2, 20, 2),
    Sketcher.Constraint("Horizontal", 22, 2, 23, 2),
    Sketcher.Constraint("Horizontal", 21, 2, 24, 2),
    Sketcher.Constraint("Horizontal", 27, 2, 32, 2),
    Sketcher.Constraint("Horizontal", 26, 2, 33, 2),
    Sketcher.Constraint("Horizontal", 25, 2, 34, 2),
    Sketcher.Constraint("Horizontal", 36, 2, 37, 2),
    Sketcher.Constraint("Horizontal", 35, 2, 38, 2),
    Sketcher.Constraint("Horizontal", 40, 2, 41, 2),
    Sketcher.Constraint("Horizontal", 39, 2, 42, 2),
    Sketcher.Constraint("Horizontal", 44, 2, 45, 2),
    Sketcher.Constraint("Horizontal", 43, 2, 46, 2),
    Sketcher.Constraint("Horizontal", 48, 2, 49, 2),
    Sketcher.Constraint("Horizontal", 47, 2, 50, 2),
    Sketcher.Constraint("Horizontal", 51, 2, 53, 2),
    Sketcher.Constraint("Equal", 9, 11),
    Sketcher.Constraint("Equal", 13, 15),
    Sketcher.Constraint("Equal", 17, 19),
    Sketcher.Constraint("Equal", 21, 23),
    Sketcher.Constraint("Equal", 25, 33),
    Sketcher.Constraint("Equal", 35, 37),
    Sketcher.Constraint("Equal", 39, 41),
    Sketcher.Constraint("Equal", 43, 45),
    Sketcher.Constraint("Equal", 47, 49),
    Sketcher.Constraint("DistanceX", 1, 1, 1, 2, Q("151 mm")),
    Sketcher.Constraint("DistanceX", 7, 2, 7, 1, Q("8 mm")),
    Sketcher.Constraint("DistanceY", 0, 2, 4, 2, Q("8 mm")),
    Sketcher.Constraint("DistanceX", 0, 2, 7, 2, Q("8 mm")),
    Sketcher.Constraint("DistanceY", 8, 2, 3, 2, Q("4 mm")),
    Sketcher.Constraint("DistanceX", 10, 2, 11, 2, Q("3 mm")),
    Sketcher.Constraint("DistanceX", 14, 2, 15, 2, Q("3 mm")),
    Sketcher.Constraint("DistanceX", 18, 2, 19, 2, Q("3 mm")),
    Sketcher.Constraint("DistanceX", 22, 2, 23, 2, Q("3 mm")),
    Sketcher.Constraint("DistanceX", 26, 2, 27, 2, Q("3 mm")),
    Sketcher.Constraint("DistanceX", 28, 2, 31, 2, Q("25 mm")),
    Sketcher.Constraint("DistanceX", 32, 2, 33, 2, Q("3 mm")),
    Sketcher.Constraint("DistanceX", 36, 2, 37, 2, Q("3 mm")),
    Sketcher.Constraint("DistanceX", 40, 2, 41, 2, Q("3 mm")),
    Sketcher.Constraint("DistanceX", 44, 2, 45, 2, Q("3 mm")),
    Sketcher.Constraint("DistanceX", 48, 2, 49, 2, Q("3 mm")),
    Sketcher.Constraint("DistanceX", 4, 2, 4, 1, Q("19.471289 mm")),
    Sketcher.Constraint("DistanceX", 53, 1, 53, 2, Q("19.212119 mm")),
    Sketcher.Constraint("DistanceY", 28, 1, 28, 2, Q("20.702222 mm")),
    Sketcher.Constraint("DistanceY", 32, 2, 32, 1, Q("20.921152 mm")),
    Sketcher.Constraint("DistanceY", 29, 2, 28, 2, Q("10.290501 mm")),
    Sketcher.Constraint("DistanceY", 6, 2, 31, 2, Q("23.8956 mm")),
    Sketcher.Constraint("Distance", 6, Q("14.286868 mm")),
    Sketcher.Constraint("Distance", 30, Q("14.295158 mm")),
    Sketcher.Constraint("Distance", 54, Q("14.185182 mm")),
    Sketcher.Constraint("DistanceY", 0, 2, 0, 1, Q("38.900017 mm")),
    Sketcher.Constraint("DistanceX", 0, 2, -1, 1, Q("77.722808 mm")),
    Sketcher.Constraint("DistanceY", -1, 1, 2, 2, Q("39.57366 mm")),
    Sketcher.Constraint("DistanceX", 4, 2, 29, 2, Q("6.899838 mm")),
    Sketcher.Constraint("DistanceX", 54, 2, 30, 2, Q("2.765559 mm")),
])
pad2 = body.newObject("PartDesign::Pad", "Pad001")
pad2.Profile = sketch3
pad2.Length = 8

# Sketch on XY plane
sketch4 = body.newObject("Sketcher::SketchObject", "Sketch003")
sketch4.AttachmentSupport = (doc.getObject("XY_Plane"), [""])
sketch4.MapMode = "FlatFace"
sketch4.addGeometry([
    Part.LineSegment(V(-75.4, -2, 0), V(-75.4, -6, 0)),  # 0
    Part.LineSegment(V(-75.4, -6, 0), V(-52.9, -6, 0)),  # 1
    Part.LineSegment(V(-52.9, -6, 0), V(-52.9, -2, 0)),  # 2
    Part.LineSegment(V(-52.9, -2, 0), V(-75.4, -2, 0)),  # 3
    Part.LineSegment(V(-42.9, -2, 0), V(-42.9, -6, 0)),  # 4
    Part.LineSegment(V(-42.9, -6, 0), V(-19.9, -6, 0)),  # 5
    Part.LineSegment(V(-19.9, -6, 0), V(-19.9, -2, 0)),  # 6
    Part.LineSegment(V(-19.9, -2, 0), V(-42.9, -2, 0)),  # 7
    Part.LineSegment(V(12.1, -2, 0), V(12.1, -6, 0)),  # 8
    Part.LineSegment(V(12.1, -6, 0), V(35.1, -6, 0)),  # 9
    Part.LineSegment(V(35.1, -6, 0), V(35.1, -2, 0)),  # 10
    Part.LineSegment(V(35.1, -2, 0), V(12.1, -2, 0)),  # 11
    Part.LineSegment(V(45.1, -2, 0), V(45.1, -6, 0)),  # 12
    Part.LineSegment(V(45.1, -6, 0), V(67.6, -6, 0)),  # 13
    Part.LineSegment(V(67.6, -6, 0), V(67.6, -2, 0)),  # 14
    Part.LineSegment(V(67.6, -2, 0), V(45.1, -2, 0)),  # 15
], False)
sketch4.addConstraint([
    Sketcher.Constraint("Coincident", 0, 2, 1, 1),
    Sketcher.Constraint("Coincident", 1, 2, 2, 1),
    Sketcher.Constraint("Coincident", 2, 2, 3, 1),
    Sketcher.Constraint("Coincident", 3, 2, 0, 1),
    Sketcher.Constraint("Coincident", 4, 2, 5, 1),
    Sketcher.Constraint("Coincident", 5, 2, 6, 1),
    Sketcher.Constraint("Coincident", 6, 2, 7, 1),
    Sketcher.Constraint("Coincident", 7, 2, 4, 1),
    Sketcher.Constraint("Coincident", 8, 2, 9, 1),
    Sketcher.Constraint("Coincident", 9, 2, 10, 1),
    Sketcher.Constraint("Coincident", 10, 2, 11, 1),
    Sketcher.Constraint("Coincident", 11, 2, 8, 1),
    Sketcher.Constraint("Coincident", 12, 2, 13, 1),
    Sketcher.Constraint("Coincident", 13, 2, 14, 1),
    Sketcher.Constraint("Coincident", 14, 2, 15, 1),
    Sketcher.Constraint("Coincident", 15, 2, 12, 1),
    Sketcher.Constraint("Vertical", 0),
    Sketcher.Constraint("Horizontal", 1),
    Sketcher.Constraint("Vertical", 2),
    Sketcher.Constraint("Horizontal", 3),
    Sketcher.Constraint("Vertical", 4),
    Sketcher.Constraint("Horizontal", 5),
    Sketcher.Constraint("Vertical", 6),
    Sketcher.Constraint("Horizontal", 7),
    Sketcher.Constraint("Vertical", 8),
    Sketcher.Constraint("Horizontal", 9),
    Sketcher.Constraint("Vertical", 10),
    Sketcher.Constraint("Horizontal", 11),
    Sketcher.Constraint("Vertical", 12),
    Sketcher.Constraint("Horizontal", 13),
    Sketcher.Constraint("Vertical", 14),
    Sketcher.Constraint("Horizontal", 15),
    Sketcher.Constraint("Horizontal", 1, 2, 4, 2),
    Sketcher.Constraint("Horizontal", 3, 2, 6, 2),
    Sketcher.Constraint("Horizontal", 5, 2, 8, 2),
    Sketcher.Constraint("Horizontal", 7, 2, 10, 2),
    Sketcher.Constraint("Horizontal", 9, 2, 12, 2),
    Sketcher.Constraint("Horizontal", 11, 2, 14, 2),
    Sketcher.Constraint("Equal", 7, 9),
    Sketcher.Constraint("Equal", 3, 13),
    Sketcher.Constraint("DistanceX", 5, 1, 5, 2, Q("23 mm")),
    Sketcher.Constraint("DistanceY", 0, 2, 0, 1, Q("4 mm")),
    Sketcher.Constraint("DistanceX", 1, 1, 1, 2, Q("22.5 mm")),
    Sketcher.Constraint("DistanceX", 1, 2, 4, 2, Q("10 mm")),
    Sketcher.Constraint("DistanceX", 5, 2, 8, 2, Q("32 mm")),
    Sketcher.Constraint("DistanceX", 9, 2, 12, 2, Q("10 mm")),
    Sketcher.Constraint("DistanceX", 1, 2, -1, 1, Q("52.866058 mm")),
    Sketcher.Constraint("DistanceY", 0, 2, -1, 1, Q("5.990048 mm")),
])
pocket2 = body.newObject("PartDesign::Pocket", "Pocket001")
pocket2.Profile = sketch4
pocket2.Length = 5
pocket2.Reversed = True

doc.recompute()
